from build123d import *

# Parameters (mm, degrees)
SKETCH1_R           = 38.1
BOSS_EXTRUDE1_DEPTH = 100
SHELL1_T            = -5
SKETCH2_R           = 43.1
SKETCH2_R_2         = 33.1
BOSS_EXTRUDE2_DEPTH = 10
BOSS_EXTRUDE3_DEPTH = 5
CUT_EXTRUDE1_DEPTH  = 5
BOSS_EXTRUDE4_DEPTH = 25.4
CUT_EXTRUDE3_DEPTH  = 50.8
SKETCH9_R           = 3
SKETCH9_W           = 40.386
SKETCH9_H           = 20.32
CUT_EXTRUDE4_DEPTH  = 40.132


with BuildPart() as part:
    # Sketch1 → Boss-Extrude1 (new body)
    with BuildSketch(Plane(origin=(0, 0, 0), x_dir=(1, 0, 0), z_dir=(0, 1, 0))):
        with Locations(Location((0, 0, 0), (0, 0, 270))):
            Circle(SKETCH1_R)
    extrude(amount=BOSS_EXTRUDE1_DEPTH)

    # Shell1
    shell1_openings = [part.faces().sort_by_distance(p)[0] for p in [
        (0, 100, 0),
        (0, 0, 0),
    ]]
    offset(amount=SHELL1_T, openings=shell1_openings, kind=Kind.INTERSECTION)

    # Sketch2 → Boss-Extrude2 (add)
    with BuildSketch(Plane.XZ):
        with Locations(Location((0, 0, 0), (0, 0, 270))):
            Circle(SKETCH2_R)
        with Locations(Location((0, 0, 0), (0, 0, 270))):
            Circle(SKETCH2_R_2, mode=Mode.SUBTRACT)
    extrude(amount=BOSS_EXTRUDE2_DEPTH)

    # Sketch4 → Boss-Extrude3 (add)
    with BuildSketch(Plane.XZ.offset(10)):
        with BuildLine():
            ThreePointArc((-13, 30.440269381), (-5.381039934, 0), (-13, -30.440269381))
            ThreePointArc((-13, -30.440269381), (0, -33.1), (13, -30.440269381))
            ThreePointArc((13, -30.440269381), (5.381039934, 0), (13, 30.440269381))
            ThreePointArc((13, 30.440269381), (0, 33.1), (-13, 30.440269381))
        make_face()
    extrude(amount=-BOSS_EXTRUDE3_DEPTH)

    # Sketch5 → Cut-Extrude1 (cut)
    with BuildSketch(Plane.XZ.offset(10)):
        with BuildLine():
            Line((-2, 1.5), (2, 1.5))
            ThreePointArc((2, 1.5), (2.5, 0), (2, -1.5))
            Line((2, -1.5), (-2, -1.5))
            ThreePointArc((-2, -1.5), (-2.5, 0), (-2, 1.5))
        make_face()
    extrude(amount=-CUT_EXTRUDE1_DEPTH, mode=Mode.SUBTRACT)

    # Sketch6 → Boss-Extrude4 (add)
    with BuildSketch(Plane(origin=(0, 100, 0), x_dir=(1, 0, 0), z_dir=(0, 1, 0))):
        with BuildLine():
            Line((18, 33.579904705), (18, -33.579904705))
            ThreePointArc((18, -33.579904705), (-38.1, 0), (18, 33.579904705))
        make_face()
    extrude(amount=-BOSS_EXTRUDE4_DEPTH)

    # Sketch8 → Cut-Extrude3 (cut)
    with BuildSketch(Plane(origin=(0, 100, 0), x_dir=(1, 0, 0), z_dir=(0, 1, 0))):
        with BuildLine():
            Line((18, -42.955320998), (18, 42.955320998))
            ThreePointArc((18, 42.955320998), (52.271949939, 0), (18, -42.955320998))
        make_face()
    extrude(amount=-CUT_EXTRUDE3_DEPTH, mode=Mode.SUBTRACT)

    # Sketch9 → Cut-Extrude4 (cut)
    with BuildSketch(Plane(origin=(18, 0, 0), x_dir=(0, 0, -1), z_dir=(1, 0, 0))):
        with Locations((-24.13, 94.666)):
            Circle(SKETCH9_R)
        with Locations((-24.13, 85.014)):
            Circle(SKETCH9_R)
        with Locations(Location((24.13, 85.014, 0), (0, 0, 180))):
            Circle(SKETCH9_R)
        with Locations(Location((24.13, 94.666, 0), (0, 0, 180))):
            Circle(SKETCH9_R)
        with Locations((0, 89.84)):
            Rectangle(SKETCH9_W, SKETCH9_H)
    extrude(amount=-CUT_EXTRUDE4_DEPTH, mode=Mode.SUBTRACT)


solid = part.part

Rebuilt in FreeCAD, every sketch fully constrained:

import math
import FreeCAD as App
import Part
import Sketcher
Q = App.Units.Quantity


def faces_at(feature, points):
    """Names of the faces that lie closest to the given points."""
    faces = feature.Shape.Faces
    near = lambda p: min(range(len(faces)), key=lambda i: faces[i].distToShape(Part.Vertex(*p))[0])
    return sorted({f"Face{near(p) + 1}" for p in points})

doc = App.newDocument("Part")
params = doc.addObject("Spreadsheet::Sheet", "Params")
for row, (alias, value) in enumerate([
    ("sketch1_diameter", "76.2 mm"),
    ("pad1_length", "100 mm"),
    ("thickness_wall", "5 mm"),
    ("sketch2_diameter", "86.2 mm"),
    ("sketch2_diameter2", "66.2 mm"),
    ("pad2_length", "10 mm"),
    ("sketch3_radius", "33.1 mm"),
    ("pad3_length", "5 mm"),
    ("sketch4_radius", "2.5 mm"),
    ("sketch4_width", "4 mm"),
    ("pocket1_length", "5 mm"),
    ("sketch5_radius", "38.1 mm"),
    ("pad4_length", "25.4 mm"),
    ("pocket2_length", "50.8 mm"),
    ("sketch7_diameter", "6 mm"),
    ("sketch7_width", "20.32 mm"),
    ("pocket3_length", "40.132 mm"),
], start=1):
    params.set(f"A{row}", alias)
    params.set(f"B{row}", "=" + value)
    params.setAlias(f"B{row}", alias)

body = doc.addObject("PartDesign::Body", "Body")

# Sketch on XZ plane
sketch1 = body.newObject("Sketcher::SketchObject", "Sketch")
sketch1.AttachmentSupport = (doc.getObject("XZ_Plane"), [""])
sketch1.MapMode = "FlatFace"
sketch1.addGeometry(Part.Circle(App.Vector(0, 0, 0), App.Vector(0, 0, 1), 38.1), False)
sketch1.addConstraint(Sketcher.Constraint("Coincident", 0, 3, -1, 1))
sketch1.addConstraint(Sketcher.Constraint("Diameter", 0, Q("76.2 mm")))
sketch1.setExpression("Constraints[1]", "Params.sketch1_diameter")
pad1 = body.newObject("PartDesign::Pad", "Pad")
pad1.Profile = sketch1
pad1.setExpression("Length", "Params.pad1_length")
pad1.Reversed = True
doc.recompute()

thickness = body.newObject("PartDesign::Thickness", "Thickness")
thickness.Base = (pad1, faces_at(pad1, [(0, 100, 0), (0, 0, 0)]))
thickness.setExpression("Value", "Params.thickness_wall")
thickness.Reversed = True
thickness.Join = "Intersection"

# Sketch on XZ plane
sketch2 = body.newObject("Sketcher::SketchObject", "Sketch001")
sketch2.AttachmentSupport = (doc.getObject("XZ_Plane"), [""])
sketch2.MapMode = "FlatFace"
sketch2.addGeometry(Part.Circle(App.Vector(0, 0, 0), App.Vector(0, 0, 1), 43.1), False)
sketch2.addGeometry(Part.Circle(App.Vector(0, 0, 0), App.Vector(0, 0, 1), 33.1), False)
sketch2.addConstraint(Sketcher.Constraint("Coincident", 0, 3, -1, 1))
sketch2.addConstraint(Sketcher.Constraint("Coincident", 1, 3, -1, 1))
sketch2.addConstraint(Sketcher.Constraint("Diameter", 0, Q("86.2 mm")))
sketch2.addConstraint(Sketcher.Constraint("Diameter", 1, Q("66.2 mm")))
sketch2.setExpression("Constraints[2]", "Params.sketch2_diameter")
sketch2.setExpression("Constraints[3]", "Params.sketch2_diameter2")
pad2 = body.newObject("PartDesign::Pad", "Pad001")
pad2.Profile = sketch2
pad2.setExpression("Length", "Params.pad2_length")

# Sketch on XZ plane
sketch3 = body.newObject("Sketcher::SketchObject", "Sketch002")
sketch3.AttachmentSupport = (doc.getObject("XZ_Plane"), [""])
sketch3.MapMode = "FlatFace"
sketch3.AttachmentOffset = App.Placement(App.Vector(0, 0, 10), App.Rotation())
sketch3.addGeometry(Part.ArcOfCircle(Part.Circle(App.Vector(-70, 0, 0), App.Vector(0, 0, 1), 64.61896), math.radians(-28.103992), math.radians(28.103992)), False)
sketch3.addGeometry(Part.ArcOfCircle(Part.Circle(App.Vector(0, 0, 0), App.Vector(0, 0, 1), 33.1), math.radians(-113.125674), math.radians(-66.874326)), False)
sketch3.addGeometry(Part.ArcOfCircle(Part.Circle(App.Vector(70, 0, 0), App.Vector(0, 0, 1), 64.61896), math.radians(151.896008), math.radians(208.103992)), False)
sketch3.addGeometry(Part.ArcOfCircle(Part.Circle(App.Vector(0, 0, 0), App.Vector(0, 0, 1), 33.1), math.radians(66.874326), math.radians(113.125674)), False)
sketch3.addConstraint(Sketcher.Constraint("Coincident", 0, 1, 1, 1))
sketch3.addConstraint(Sketcher.Constraint("Coincident", 1, 2, 2, 2))
sketch3.addConstraint(Sketcher.Constraint("Coincident", 2, 1, 3, 1))
sketch3.addConstraint(Sketcher.Constraint("Coincident", 3, 2, 0, 2))
sketch3.addConstraint(Sketcher.Constraint("Coincident", 1, 3, -1, 1))
sketch3.addConstraint(Sketcher.Constraint("Coincident", 3, 3, -1, 1))
sketch3.addConstraint(Sketcher.Constraint("Equal", 0, 2))
sketch3.addConstraint(Sketcher.Constraint("Equal", 1, 3))
sketch3.addConstraint(Sketcher.Constraint("Symmetric", 0, 3, 2, 3, -1, 1))
sketch3.addConstraint(Sketcher.Constraint("PointOnObject", 0, 3, -1))
sketch3.addConstraint(Sketcher.Constraint("Radius", 1, Q("33.1 mm")))
sketch3.addConstraint(Sketcher.Constraint("DistanceX", 0, 3, -1, 1, Q("70 mm")))
sketch3.addConstraint(Sketcher.Constraint("DistanceX", 0, 1, -1, 1, Q("13 mm")))
sketch3.setExpression("Constraints[10]", "Params.sketch3_radius")
pad3 = body.newObject("PartDesign::Pad", "Pad002")
pad3.Profile = sketch3
pad3.setExpression("Length", "Params.pad3_length")
pad3.Reversed = True

# Sketch on XZ plane
sketch4 = body.newObject("Sketcher::SketchObject", "Sketch003")
sketch4.AttachmentSupport = (doc.getObject("XZ_Plane"), [""])
sketch4.MapMode = "FlatFace"
sketch4.AttachmentOffset = App.Placement(App.Vector(0, 0, 10), App.Rotation())
sketch4.addGeometry(Part.LineSegment(App.Vector(2, 1.5, 0), App.Vector(-2, 1.5, 0)), False)
sketch4.addGeometry(Part.ArcOfCircle(Part.Circle(App.Vector(0, 0, 0), App.Vector(0, 0, 1), 2.5), math.radians(143.130102), math.radians(216.869898)), False)
sketch4.addGeometry(Part.LineSegment(App.Vector(-2, -1.5, 0), App.Vector(2, -1.5, 0)), False)
sketch4.addGeometry(Part.ArcOfCircle(Part.Circle(App.Vector(0, 0, 0), App.Vector(0, 0, 1), 2.5), math.radians(-36.869898), math.radians(36.869898)), False)
sketch4.addConstraint(Sketcher.Constraint("Coincident", 0, 2, 1, 1))
sketch4.addConstraint(Sketcher.Constraint("Coincident", 1, 2, 2, 1))
sketch4.addConstraint(Sketcher.Constraint("Coincident", 2, 2, 3, 1))
sketch4.addConstraint(Sketcher.Constraint("Coincident", 3, 2, 0, 1))
sketch4.addConstraint(Sketcher.Constraint("Horizontal", 0))
sketch4.addConstraint(Sketcher.Constraint("Horizontal", 2))
sketch4.addConstraint(Sketcher.Constraint("Coincident", 1, 3, -1, 1))
sketch4.addConstraint(Sketcher.Constraint("Coincident", 3, 3, -1, 1))
sketch4.addConstraint(Sketcher.Constraint("Equal", 1, 3))
sketch4.addConstraint(Sketcher.Constraint("Vertical", 0, 2, 1, 2))
sketch4.addConstraint(Sketcher.Constraint("Radius", 1, Q("2.5 mm")))
sketch4.addConstraint(Sketcher.Constraint("DistanceX", 0, 2, 0, 1, Q("4 mm")))
sketch4.setExpression("Constraints[10]", "Params.sketch4_radius")
sketch4.setExpression("Constraints[11]", "Params.sketch4_width")
pocket1 = body.newObject("PartDesign::Pocket", "Pocket")
pocket1.Profile = sketch4
pocket1.setExpression("Length", "Params.pocket1_length")

# Sketch on XZ plane
sketch5 = body.newObject("Sketcher::SketchObject", "Sketch004")
sketch5.AttachmentSupport = (doc.getObject("XZ_Plane"), [""])
sketch5.MapMode = "FlatFace"
sketch5.AttachmentOffset = App.Placement(App.Vector(0, 0, -100), App.Rotation())
sketch5.addGeometry(Part.LineSegment(App.Vector(18, 33.579905, 0), App.Vector(18, -33.579905, 0)), False)
sketch5.addGeometry(Part.ArcOfCircle(Part.Circle(App.Vector(0, 0, 0), App.Vector(0, 0, 1), 38.1), math.radians(61.807139), math.radians(298.192861)), False)
sketch5.addConstraint(Sketcher.Constraint("Coincident", 0, 1, 1, 1))
sketch5.addConstraint(Sketcher.Constraint("Coincident", 1, 2, 0, 2))
sketch5.addConstraint(Sketcher.Constraint("Vertical", 0))
sketch5.addConstraint(Sketcher.Constraint("Coincident", 1, 3, -1, 1))
sketch5.addConstraint(Sketcher.Constraint("Radius", 1, Q("38.1 mm")))
sketch5.addConstraint(Sketcher.Constraint("DistanceX", -1, 1, 0, 1, Q("18 mm")))
sketch5.setExpression("Constraints[4]", "Params.sketch5_radius")
pad4 = body.newObject("PartDesign::Pad", "Pad003")
pad4.Profile = sketch5
pad4.setExpression("Length", "Params.pad4_length")

# Sketch on XZ plane
sketch6 = body.newObject("Sketcher::SketchObject", "Sketch005")
sketch6.AttachmentSupport = (doc.getObject("XZ_Plane"), [""])
sketch6.MapMode = "FlatFace"
sketch6.AttachmentOffset = App.Placement(App.Vector(0, 0, -100), App.Rotation())
sketch6.addGeometry(Part.LineSegment(App.Vector(18, -42.955321, 0), App.Vector(18, 42.955321, 0)), False)
sketch6.addGeometry(Part.ArcOfCircle(Part.Circle(App.Vector(8.21659, 0, 0), App.Vector(0, 0, 1), 44.05536), math.radians(-77.169309), math.radians(77.169309)), False)
sketch6.addConstraint(Sketcher.Constraint("Coincident", 0, 1, 1, 1))
sketch6.addConstraint(Sketcher.Constraint("Coincident", 1, 2, 0, 2))
sketch6.addConstraint(Sketcher.Constraint("Vertical", 0))
sketch6.addConstraint(Sketcher.Constraint("PointOnObject", 1, 3, -1))
sketch6.addConstraint(Sketcher.Constraint("DistanceX", -1, 1, 0, 1, Q("18 mm")))
sketch6.addConstraint(Sketcher.Constraint("Radius", 1, Q("44.05536 mm")))
sketch6.addConstraint(Sketcher.Constraint("DistanceY", 0, 1, 0, 2, Q("85.910642 mm")))
pocket2 = body.newObject("PartDesign::Pocket", "Pocket001")
pocket2.Profile = sketch6
pocket2.setExpression("Length", "Params.pocket2_length")
pocket2.Reversed = True

# Sketch on YZ plane
sketch7 = body.newObject("Sketcher::SketchObject", "Sketch006")
sketch7.AttachmentSupport = (doc.getObject("YZ_Plane"), [""])
sketch7.MapMode = "FlatFace"
sketch7.AttachmentOffset = App.Placement(App.Vector(0, 0, 18), App.Rotation())
sketch7.addGeometry(Part.Circle(App.Vector(94.666, 24.13, 0), App.Vector(0, 0, 1), 3), False)
sketch7.addGeometry(Part.Circle(App.Vector(85.014, 24.13, 0), App.Vector(0, 0, 1), 3), False)
sketch7.addGeometry(Part.Circle(App.Vector(85.014, -24.13, 0), App.Vector(0, 0, 1), 3), False)
sketch7.addGeometry(Part.Circle(App.Vector(94.666, -24.13, 0), App.Vector(0, 0, 1), 3), False)
sketch7.addGeometry(Part.LineSegment(App.Vector(100, 20.193, 0), App.Vector(79.68, 20.193, 0)), False)
sketch7.addGeometry(Part.LineSegment(App.Vector(79.68, 20.193, 0), App.Vector(79.68, -20.193, 0)), False)
sketch7.addGeometry(Part.LineSegment(App.Vector(79.68, -20.193, 0), App.Vector(100, -20.193, 0)), False)
sketch7.addGeometry(Part.LineSegment(App.Vector(100, -20.193, 0), App.Vector(100, 20.193, 0)), False)
sketch7.addConstraint(Sketcher.Constraint("Coincident", 4, 2, 5, 1))
sketch7.addConstraint(Sketcher.Constraint("Coincident", 5, 2, 6, 1))
sketch7.addConstraint(Sketcher.Constraint("Coincident", 6, 2, 7, 1))
sketch7.addConstraint(Sketcher.Constraint("Coincident", 7, 2, 4, 1))
sketch7.addConstraint(Sketcher.Constraint("Horizontal", 4))
sketch7.addConstraint(Sketcher.Constraint("Vertical", 5))
sketch7.addConstraint(Sketcher.Constraint("Horizontal", 6))
sketch7.addConstraint(Sketcher.Constraint("Vertical", 7))
sketch7.addConstraint(Sketcher.Constraint("Equal", 0, 1))
sketch7.addConstraint(Sketcher.Constraint("Equal", 1, 2))
sketch7.addConstraint(Sketcher.Constraint("Equal", 2, 3))
sketch7.addConstraint(Sketcher.Constraint("Symmetric", 1, 3, 2, 3, -1))
sketch7.addConstraint(Sketcher.Constraint("Symmetric", 0, 3, 3, 3, -1))
sketch7.addConstraint(Sketcher.Constraint("Horizontal", 0, 3, 1, 3))
sketch7.addConstraint(Sketcher.Constraint("Diameter", 0, Q("6 mm")))
sketch7.addConstraint(Sketcher.Constraint("DistanceX", -1, 1, 6, 2, Q("100 mm")))
sketch7.addConstraint(Sketcher.Constraint("DistanceX", 4, 2, 4, 1, Q("20.32 mm")))
sketch7.addConstraint(Sketcher.Constraint("DistanceY", 5, 2, 5, 1, Q("40.386 mm")))
sketch7.addConstraint(Sketcher.Constraint("DistanceY", -1, 1, 0, 3, Q("24.13 mm")))
sketch7.addConstraint(Sketcher.Constraint("DistanceX", -1, 1, 0, 3, Q("94.666 mm")))
sketch7.addConstraint(Sketcher.Constraint("DistanceX", -1, 1, 1, 3, Q("85.014 mm")))
sketch7.addConstraint(Sketcher.Constraint("DistanceY", -1, 1, 4, 2, Q("20.193 mm")))
sketch7.setExpression("Constraints[14]", "Params.sketch7_diameter")
sketch7.setExpression("Constraints[16]", "Params.sketch7_width")
pocket3 = body.newObject("PartDesign::Pocket", "Pocket002")
pocket3.Profile = sketch7
pocket3.setExpression("Length", "Params.pocket3_length")

doc.recompute()
